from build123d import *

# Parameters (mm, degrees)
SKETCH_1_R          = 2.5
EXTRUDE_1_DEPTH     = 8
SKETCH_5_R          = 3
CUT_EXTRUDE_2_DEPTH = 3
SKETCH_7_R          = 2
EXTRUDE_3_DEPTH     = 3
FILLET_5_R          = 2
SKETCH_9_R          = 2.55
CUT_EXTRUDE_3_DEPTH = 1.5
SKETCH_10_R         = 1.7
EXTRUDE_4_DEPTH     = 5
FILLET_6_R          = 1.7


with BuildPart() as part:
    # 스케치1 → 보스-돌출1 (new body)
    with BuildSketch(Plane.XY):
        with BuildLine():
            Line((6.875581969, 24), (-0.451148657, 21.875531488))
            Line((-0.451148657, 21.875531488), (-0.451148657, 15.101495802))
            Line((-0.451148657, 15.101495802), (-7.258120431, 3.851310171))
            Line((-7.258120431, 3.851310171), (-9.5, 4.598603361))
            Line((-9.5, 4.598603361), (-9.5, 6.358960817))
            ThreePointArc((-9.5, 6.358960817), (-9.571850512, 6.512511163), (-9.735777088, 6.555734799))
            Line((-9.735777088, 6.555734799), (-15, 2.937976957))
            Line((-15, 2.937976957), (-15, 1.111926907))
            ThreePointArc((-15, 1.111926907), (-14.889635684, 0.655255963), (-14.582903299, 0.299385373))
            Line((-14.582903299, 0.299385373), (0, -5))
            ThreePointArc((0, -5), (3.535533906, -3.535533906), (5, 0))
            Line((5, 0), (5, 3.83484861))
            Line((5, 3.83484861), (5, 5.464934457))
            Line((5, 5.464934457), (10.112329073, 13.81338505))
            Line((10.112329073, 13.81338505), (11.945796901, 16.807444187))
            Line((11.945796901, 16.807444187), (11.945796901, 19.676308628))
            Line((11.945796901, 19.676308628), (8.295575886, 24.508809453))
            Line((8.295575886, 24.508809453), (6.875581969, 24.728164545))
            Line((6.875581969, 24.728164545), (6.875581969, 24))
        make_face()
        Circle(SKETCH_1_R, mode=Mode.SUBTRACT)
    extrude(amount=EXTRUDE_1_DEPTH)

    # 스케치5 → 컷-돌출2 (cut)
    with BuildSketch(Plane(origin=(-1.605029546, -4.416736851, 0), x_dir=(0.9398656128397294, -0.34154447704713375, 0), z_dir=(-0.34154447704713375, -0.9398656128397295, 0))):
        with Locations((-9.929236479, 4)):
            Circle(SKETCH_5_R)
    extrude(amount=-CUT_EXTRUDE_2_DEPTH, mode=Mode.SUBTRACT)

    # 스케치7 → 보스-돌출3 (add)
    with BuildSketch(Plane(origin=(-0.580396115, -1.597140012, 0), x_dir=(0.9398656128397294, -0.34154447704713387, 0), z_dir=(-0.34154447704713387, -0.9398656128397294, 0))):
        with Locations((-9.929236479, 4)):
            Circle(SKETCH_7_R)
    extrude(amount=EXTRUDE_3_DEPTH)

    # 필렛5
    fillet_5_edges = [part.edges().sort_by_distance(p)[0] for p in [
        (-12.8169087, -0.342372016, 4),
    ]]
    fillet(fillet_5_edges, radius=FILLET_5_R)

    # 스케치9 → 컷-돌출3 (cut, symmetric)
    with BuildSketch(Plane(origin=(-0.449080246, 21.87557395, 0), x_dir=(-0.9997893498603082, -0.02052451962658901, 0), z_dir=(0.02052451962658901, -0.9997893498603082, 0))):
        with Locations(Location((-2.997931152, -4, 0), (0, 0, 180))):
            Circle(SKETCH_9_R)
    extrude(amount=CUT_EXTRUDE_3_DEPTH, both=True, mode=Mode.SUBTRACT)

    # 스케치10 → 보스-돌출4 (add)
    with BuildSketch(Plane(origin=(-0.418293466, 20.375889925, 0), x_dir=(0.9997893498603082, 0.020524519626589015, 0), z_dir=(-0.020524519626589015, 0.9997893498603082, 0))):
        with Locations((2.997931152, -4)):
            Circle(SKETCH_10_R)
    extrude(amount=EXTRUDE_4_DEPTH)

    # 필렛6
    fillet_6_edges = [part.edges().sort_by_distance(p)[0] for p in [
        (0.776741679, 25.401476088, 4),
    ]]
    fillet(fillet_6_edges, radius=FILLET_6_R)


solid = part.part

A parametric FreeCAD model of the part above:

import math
import FreeCAD as App
import Part
import Sketcher
from FreeCAD import Vector
Q = App.Units.Quantity


def edges_at(feature, points):
    """Names of the edges that pass closest to the given points."""
    edges = feature.Shape.Edges
    near = lambda p: min(range(len(edges)), key=lambda i: edges[i].distToShape(Part.Vertex(*p))[0])
    return sorted({f"Edge{near(p) + 1}" for p in points})

doc = App.newDocument("Part")
body = doc.addObject("PartDesign::Body", "Body")

# Sketch on XY plane
sketch1 = body.newObject("Sketcher::SketchObject", "Sketch")
sketch1.AttachmentSupport = (doc.getObject("XY_Plane"), [""])
sketch1.MapMode = "FlatFace"
sketch1.addGeometry(Part.LineSegment(Vector(6.875582, 24, 0), Vector(-0.451149, 21.875531, 0)), False)
sketch1.addGeometry(Part.LineSegment(Vector(-0.451149, 21.875531, 0), Vector(-0.451149, 15.101496, 0)), False)
sketch1.addGeometry(Part.LineSegment(Vector(-0.451149, 15.101496, 0), Vector(-7.25812, 3.85131, 0)), False)
sketch1.addGeometry(Part.LineSegment(Vector(-7.25812, 3.85131, 0), Vector(-9.5, 4.598603, 0)), False)
sketch1.addGeometry(Part.LineSegment(Vector(-9.5, 4.598603, 0), Vector(-9.5, 6.358961, 0)), False)
sketch1.addGeometry(Part.ArcOfCircle(Part.Circle(Vector(-9.7, 6.358961, 0), Vector(0, 0, 1), 0.2), math.radians(0), math.radians(100.304847)), False)
sketch1.addGeometry(Part.LineSegment(Vector(-9.735777, 6.555735, 0), Vector(-15, 2.937977, 0)), False)
sketch1.addGeometry(Part.LineSegment(Vector(-15, 2.937977, 0), Vector(-15, 1.111927, 0)), False)
sketch1.addGeometry(Part.ArcOfCircle(Part.Circle(Vector(-14, 1.111927, 0), Vector(0, 0, 1), 1), math.radians(180), math.radians(234.344995)), False)
sketch1.addGeometry(Part.LineSegment(Vector(-14.582903, 0.299385, 0), Vector(0, -5, 0)), False)
sketch1.addGeometry(Part.ArcOfCircle(Part.Circle(Vector(0, 0, 0), Vector(0, 0, 1), 5), math.radians(-90), math.radians(0)), False)
sketch1.addGeometry(Part.LineSegment(Vector(5, 0, 0), Vector(5, 5.464934, 0)), False)
sketch1.addGeometry(Part.LineSegment(Vector(5, 5.464934, 0), Vector(10.112329, 13.813385, 0)), False)
sketch1.addGeometry(Part.LineSegment(Vector(10.112329, 13.813385, 0), Vector(11.945797, 16.807444, 0)), False)
sketch1.addGeometry(Part.LineSegment(Vector(11.945797, 16.807444, 0), Vector(11.945797, 19.676309, 0)), False)
sketch1.addGeometry(Part.LineSegment(Vector(11.945797, 19.676309, 0), Vector(8.295576, 24.508809, 0)), False)
sketch1.addGeometry(Part.LineSegment(Vector(8.295576, 24.508809, 0), Vector(6.875582, 24.728165, 0)), False)
sketch1.addGeometry(Part.LineSegment(Vector(6.875582, 24.728165, 0), Vector(6.875582, 24, 0)), False)
sketch1.addGeometry(Part.Circle(Vector(0, 0, 0), Vector(0, 0, 1), 2.5), False)
sketch1.addConstraint(Sketcher.Constraint("Coincident", 0, 2, 1, 1))
sketch1.addConstraint(Sketcher.Constraint("Coincident", 1, 2, 2, 1))
sketch1.addConstraint(Sketcher.Constraint("Coincident", 2, 2, 3, 1))
sketch1.addConstraint(Sketcher.Constraint("Coincident", 3, 2, 4, 1))
sketch1.addConstraint(Sketcher.Constraint("Tangent", 4, 2, 5, 1))
sketch1.addConstraint(Sketcher.Constraint("Coincident", 5, 2, 6, 1))
sketch1.addConstraint(Sketcher.Constraint("Coincident", 6, 2, 7, 1))
sketch1.addConstraint(Sketcher.Constraint("Tangent", 7, 2, 8, 1))
sketch1.addConstraint(Sketcher.Constraint("Coincident", 8, 2, 9, 1))
sketch1.addConstraint(Sketcher.Constraint("Coincident", 9, 2, 10, 1))
sketch1.addConstraint(Sketcher.Constraint("Tangent", 10, 2, 11, 1))
sketch1.addConstraint(Sketcher.Constraint("Coincident", 11, 2, 12, 1))
sketch1.addConstraint(Sketcher.Constraint("Coincident", 12, 2, 13, 1))
sketch1.addConstraint(Sketcher.Constraint("Coincident", 13, 2, 14, 1))
sketch1.addConstraint(Sketcher.Constraint("Coincident", 14, 2, 15, 1))
sketch1.addConstraint(Sketcher.Constraint("Coincident", 15, 2, 16, 1))
sketch1.addConstraint(Sketcher.Constraint("Coincident", 16, 2, 17, 1))
sketch1.addConstraint(Sketcher.Constraint("Coincident", 17, 2, 0, 1))
sketch1.addConstraint(Sketcher.Constraint("Vertical", 1))
sketch1.addConstraint(Sketcher.Constraint("Vertical", 4))
sketch1.addConstraint(Sketcher.Constraint("Vertical", 7))
sketch1.addConstraint(Sketcher.Constraint("Vertical", 11))
sketch1.addConstraint(Sketcher.Constraint("Vertical", 14))
sketch1.addConstraint(Sketcher.Constraint("Vertical", 17))
sketch1.addConstraint(Sketcher.Constraint("Coincident", 10, 3, -1, 1))
sketch1.addConstraint(Sketcher.Constraint("Coincident", 18, 3, -1, 1))
sketch1.addConstraint(Sketcher.Constraint("PointOnObject", 9, 2, -2))
sketch1.addConstraint(Sketcher.Constraint("Parallel", 12, 13))
sketch1.addConstraint(Sketcher.Constraint("Diameter", 18, Q("5 mm")))
sketch1.addConstraint(Sketcher.Constraint("Radius", 8, Q("1 mm")))
sketch1.addConstraint(Sketcher.Constraint("Radius", 10, Q("5 mm")))
sketch1.addConstraint(Sketcher.Constraint("Radius", 5, Q("0.2 mm")))
sketch1.addConstraint(Sketcher.Constraint("DistanceX", 8, 3, -1, 1, Q("14 mm")))
sketch1.addConstraint(Sketcher.Constraint("DistanceY", -1, 1, 17, 2, Q("24 mm")))
sketch1.addConstraint(Sketcher.Constraint("DistanceX", 5, 3, -1, 1, Q("9.7 mm")))
sketch1.addConstraint(Sketcher.Constraint("DistanceY", 7, 2, 7, 1, Q("1.82605 mm")))
sketch1.addConstraint(Sketcher.Constraint("DistanceY", 14, 2, 15, 2, Q("4.832501 mm")))
sketch1.addConstraint(Sketcher.Constraint("Distance", 3, Q("2.363149 mm")))
sketch1.addConstraint(Sketcher.Constraint("Distance", 12, Q("9.789409 mm")))
sketch1.addConstraint(Sketcher.Constraint("Distance", 13, Q("3.51084 mm")))
sketch1.addConstraint(Sketcher.Constraint("Distance", 15, Q("6.056169 mm")))
sketch1.addConstraint(Sketcher.Constraint("DistanceY", 1, 2, 1, 1, Q("6.774036 mm")))
sketch1.addConstraint(Sketcher.Constraint("DistanceY", 4, 1, 4, 2, Q("1.760357 mm")))
sketch1.addConstraint(Sketcher.Constraint("DistanceY", 11, 1, 11, 2, Q("5.464934 mm")))
sketch1.addConstraint(Sketcher.Constraint("DistanceY", 14, 1, 14, 2, Q("2.868864 mm")))
sketch1.addConstraint(Sketcher.Constraint("DistanceY", 17, 2, 17, 1, Q("0.728165 mm")))
sketch1.addConstraint(Sketcher.Constraint("DistanceY", -1, 1, 5, 3, Q("6.358961 mm")))
sketch1.addConstraint(Sketcher.Constraint("DistanceX", 0, 2, -1, 1, Q("0.451149 mm")))
sketch1.addConstraint(Sketcher.Constraint("DistanceY", -1, 1, 0, 2, Q("21.875531 mm")))
sketch1.addConstraint(Sketcher.Constraint("DistanceX", 2, 2, -1, 1, Q("7.25812 mm")))
sketch1.addConstraint(Sketcher.Constraint("DistanceX", -1, 1, 12, 2, Q("10.112329 mm")))
sketch1.addConstraint(Sketcher.Constraint("DistanceX", -1, 1, 16, 2, Q("6.875582 mm")))
sketch1.addConstraint(Sketcher.Constraint("DistanceY", 8, 3, 1, 2, Q("13.989569 mm")))
sketch1.addConstraint(Sketcher.Constraint("DistanceY", 3, 2, 5, 2, Q("1.957131 mm")))
sketch1.addConstraint(Sketcher.Constraint("DistanceY", 8, 2, 7, 2, Q("0.812542 mm")))
pad1 = body.newObject("PartDesign::Pad", "Pad")
pad1.Profile = sketch1
pad1.Length = 8

# Sketch on an angled plane
sketch2 = body.newObject("Sketcher::SketchObject", "Sketch001")
sketch2.Placement = App.Placement(Vector(-1.60503, -4.416737, 0), App.Rotation(Vector(0.939865613, -0.341544477, 0), Vector(0, 0, 1), Vector(-0.341544477, -0.939865613, 0), "ZXY"))
sketch2.addGeometry(Part.Circle(Vector(-9.929236, 4, 0), Vector(0, 0, 1), 3), False)
sketch2.addConstraint(Sketcher.Constraint("Diameter", 0, Q("6 mm")))
sketch2.addConstraint(Sketcher.Constraint("DistanceY", -1, 1, 0, 3, Q("4 mm")))
sketch2.addConstraint(Sketcher.Constraint("DistanceX", 0, 3, -1, 1, Q("9.929236 mm")))
pocket1 = body.newObject("PartDesign::Pocket", "Pocket")
pocket1.Profile = sketch2
pocket1.Length = 3

# Sketch on an angled plane
sketch3 = body.newObject("Sketcher::SketchObject", "Sketch002")
sketch3.Placement = App.Placement(Vector(-0.580396, -1.59714, 0), App.Rotation(Vector(0.939865613, -0.341544477, 0), Vector(0, 0, 1), Vector(-0.341544477, -0.939865613, 0), "ZXY"))
sketch3.addGeometry(Part.Circle(Vector(-9.929236, 4, 0), Vector(0, 0, 1), 2), False)
sketch3.addConstraint(Sketcher.Constraint("Diameter", 0, Q("4 mm")))
sketch3.addConstraint(Sketcher.Constraint("DistanceY", -1, 1, 0, 3, Q("4 mm")))
sketch3.addConstraint(Sketcher.Constraint("DistanceX", 0, 3, -1, 1, Q("9.929236 mm")))
pad2 = body.newObject("PartDesign::Pad", "Pad001")
pad2.Profile = sketch3
pad2.Length = 3
doc.recompute()

fillet = body.newObject("PartDesign::Fillet", "Fillet")
fillet.Base = (pad2, edges_at(pad2, [(-12.817, -0.342, 4)]))
fillet.Radius = 2

# Sketch on an angled plane
sketch4 = body.newObject("Sketcher::SketchObject", "Sketch003")
sketch4.Placement = App.Placement(Vector(-0.44908, 21.875574, 0), App.Rotation(Vector(-0.99978935, -0.02052452, 0), Vector(0, 0, -1), Vector(0.02052452, -0.99978935, 0), "ZXY"))
sketch4.addGeometry(Part.Circle(Vector(-2.997931, -4, 0), Vector(0, 0, 1), 2.55), False)
sketch4.addConstraint(Sketcher.Constraint("Diameter", 0, Q("5.1 mm")))
sketch4.addConstraint(Sketcher.Constraint("DistanceY", 0, 3, -1, 1, Q("4 mm")))
sketch4.addConstraint(Sketcher.Constraint("DistanceX", 0, 3, -1, 1, Q("2.997931 mm")))
pocket2 = body.newObject("PartDesign::Pocket", "Pocket001")
pocket2.Profile = sketch4
pocket2.Length = 3
pocket2.Midplane = True

# Sketch on an angled plane
sketch5 = body.newObject("Sketcher::SketchObject", "Sketch004")
sketch5.Placement = App.Placement(Vector(-0.418293, 20.37589, 0), App.Rotation(Vector(0.99978935, 0.02052452, 0), Vector(0, 0, -1), Vector(-0.02052452, 0.99978935, 0), "ZXY"))
sketch5.addGeometry(Part.Circle(Vector(2.997931, -4, 0), Vector(0, 0, 1), 1.7), False)
sketch5.addConstraint(Sketcher.Constraint("Diameter", 0, Q("3.4 mm")))
sketch5.addConstraint(Sketcher.Constraint("DistanceY", 0, 3, -1, 1, Q("4 mm")))
sketch5.addConstraint(Sketcher.Constraint("DistanceX", -1, 1, 0, 3, Q("2.997931 mm")))
pad3 = body.newObject("PartDesign::Pad", "Pad002")
pad3.Profile = sketch5
pad3.Length = 5
doc.recompute()

fillet2 = body.newObject("PartDesign::Fillet", "Fillet001")
fillet2.Base = (pad3, edges_at(pad3, [(0.777, 25.401, 4)]))
fillet2.Radius = 1.7

doc.recompute()
